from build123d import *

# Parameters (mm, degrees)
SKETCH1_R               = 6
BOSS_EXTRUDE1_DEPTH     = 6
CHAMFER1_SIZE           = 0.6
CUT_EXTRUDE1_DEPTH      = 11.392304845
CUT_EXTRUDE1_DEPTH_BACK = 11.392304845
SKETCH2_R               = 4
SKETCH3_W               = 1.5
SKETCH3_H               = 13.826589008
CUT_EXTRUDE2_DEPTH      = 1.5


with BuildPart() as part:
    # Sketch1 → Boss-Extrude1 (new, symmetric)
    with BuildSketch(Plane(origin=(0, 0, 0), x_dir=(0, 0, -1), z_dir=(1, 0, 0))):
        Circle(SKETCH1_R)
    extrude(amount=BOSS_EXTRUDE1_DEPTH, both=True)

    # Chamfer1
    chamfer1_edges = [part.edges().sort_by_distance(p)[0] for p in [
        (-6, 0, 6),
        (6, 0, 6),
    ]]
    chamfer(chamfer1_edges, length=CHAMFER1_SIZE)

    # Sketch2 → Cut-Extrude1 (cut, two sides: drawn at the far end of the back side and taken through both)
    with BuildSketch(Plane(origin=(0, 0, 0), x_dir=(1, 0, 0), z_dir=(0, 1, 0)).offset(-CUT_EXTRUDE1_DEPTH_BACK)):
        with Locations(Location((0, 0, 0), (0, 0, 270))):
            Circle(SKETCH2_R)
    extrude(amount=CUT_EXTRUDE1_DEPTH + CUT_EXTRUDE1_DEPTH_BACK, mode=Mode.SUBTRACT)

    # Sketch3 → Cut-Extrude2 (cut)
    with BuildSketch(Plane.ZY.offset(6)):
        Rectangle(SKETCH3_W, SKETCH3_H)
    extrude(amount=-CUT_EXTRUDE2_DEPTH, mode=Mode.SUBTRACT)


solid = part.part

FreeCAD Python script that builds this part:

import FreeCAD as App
import Part
import Sketcher
from FreeCAD import Vector
Q = App.Units.Quantity


def edges_at(feature, points):
    """Names of the edges that pass closest to the given points."""
    edges = feature.Shape.Edges
    near = lambda p: min(range(len(edges)), key=lambda i: edges[i].distToShape(Part.Vertex(*p))[0])
    return sorted({f"Edge{near(p) + 1}" for p in points})

doc = App.newDocument("Part")
body = doc.addObject("PartDesign::Body", "Body")

# Sketch on YZ plane
sketch1 = body.newObject("Sketcher::SketchObject", "Sketch")
sketch1.AttachmentSupport = (doc.getObject("YZ_Plane"), [""])
sketch1.MapMode = "FlatFace"
sketch1.addGeometry(Part.Circle(Vector(0, 0, 0), Vector(0, 0, 1), 6), False)
sketch1.addConstraint(Sketcher.Constraint("Coincident", 0, 3, -1, 1))
sketch1.addConstraint(Sketcher.Constraint("Diameter", 0, Q("12 mm")))
pad1 = body.newObject("PartDesign::Pad", "Pad")
pad1.Profile = sketch1
pad1.Length = 12
pad1.Midplane = True
doc.recompute()

chamfer = body.newObject("PartDesign::Chamfer", "Chamfer")
chamfer.Base = (pad1, edges_at(pad1, [(-6, 0, 6), (6, 0, 6)]))
chamfer.Size = 0.6

# Sketch on XZ plane
sketch2 = body.newObject("Sketcher::SketchObject", "Sketch001")
sketch2.AttachmentSupport = (doc.getObject("XZ_Plane"), [""])
sketch2.MapMode = "FlatFace"
sketch2.addGeometry(Part.Circle(Vector(0, 0, 0), Vector(0, 0, 1), 4), False)
sketch2.addConstraint(Sketcher.Constraint("Coincident", 0, 3, -1, 1))
sketch2.addConstraint(Sketcher.Constraint("Diameter", 0, Q("8 mm")))
pocket1 = body.newObject("PartDesign::Pocket", "Pocket")
pocket1.Profile = sketch2
pocket1.Type = "ThroughAll"
pocket1.Midplane = True

# Sketch on YZ plane
sketch3 = body.newObject("Sketcher::SketchObject", "Sketch002")
sketch3.AttachmentSupport = (doc.getObject("YZ_Plane"), [""])
sketch3.MapMode = "FlatFace"
sketch3.AttachmentOffset = App.Placement(Vector(0, 0, -6), App.Rotation())
sketch3.addGeometry(Part.LineSegment(Vector(6.913295, -0.75, 0), Vector(-6.913295, -0.75, 0)), False)
sketch3.addGeometry(Part.LineSegment(Vector(-6.913295, -0.75, 0), Vector(-6.913295, 0.75, 0)), False)
sketch3.addGeometry(Part.LineSegment(Vector(-6.913295, 0.75, 0), Vector(6.913295, 0.75, 0)), False)
sketch3.addGeometry(Part.LineSegment(Vector(6.913295, 0.75, 0), Vector(6.913295, -0.75, 0)), False)
sketch3.addConstraint(Sketcher.Constraint("Coincident", 0, 2, 1, 1))
sketch3.addConstraint(Sketcher.Constraint("Coincident", 1, 2, 2, 1))
sketch3.addConstraint(Sketcher.Constraint("Coincident", 2, 2, 3, 1))
sketch3.addConstraint(Sketcher.Constraint("Coincident", 3, 2, 0, 1))
sketch3.addConstraint(Sketcher.Constraint("Horizontal", 0))
sketch3.addConstraint(Sketcher.Constraint("Vertical", 1))
sketch3.addConstraint(Sketcher.Constraint("Horizontal", 2))
sketch3.addConstraint(Sketcher.Constraint("Vertical", 3))
sketch3.addConstraint(Sketcher.Constraint("Symmetric", 0, 2, 2, 2, -1, 1))
sketch3.addConstraint(Sketcher.Constraint("DistanceY", 1, 1, 1, 2, Q("1.5 mm")))
sketch3.addConstraint(Sketcher.Constraint("DistanceX", 0, 2, 0, 1, Q("13.826589 mm")))
pocket2 = body.newObject("PartDesign::Pocket", "Pocket001")
pocket2.Profile = sketch3
pocket2.Length = 1.5
pocket2.Reversed = True

doc.recompute()
